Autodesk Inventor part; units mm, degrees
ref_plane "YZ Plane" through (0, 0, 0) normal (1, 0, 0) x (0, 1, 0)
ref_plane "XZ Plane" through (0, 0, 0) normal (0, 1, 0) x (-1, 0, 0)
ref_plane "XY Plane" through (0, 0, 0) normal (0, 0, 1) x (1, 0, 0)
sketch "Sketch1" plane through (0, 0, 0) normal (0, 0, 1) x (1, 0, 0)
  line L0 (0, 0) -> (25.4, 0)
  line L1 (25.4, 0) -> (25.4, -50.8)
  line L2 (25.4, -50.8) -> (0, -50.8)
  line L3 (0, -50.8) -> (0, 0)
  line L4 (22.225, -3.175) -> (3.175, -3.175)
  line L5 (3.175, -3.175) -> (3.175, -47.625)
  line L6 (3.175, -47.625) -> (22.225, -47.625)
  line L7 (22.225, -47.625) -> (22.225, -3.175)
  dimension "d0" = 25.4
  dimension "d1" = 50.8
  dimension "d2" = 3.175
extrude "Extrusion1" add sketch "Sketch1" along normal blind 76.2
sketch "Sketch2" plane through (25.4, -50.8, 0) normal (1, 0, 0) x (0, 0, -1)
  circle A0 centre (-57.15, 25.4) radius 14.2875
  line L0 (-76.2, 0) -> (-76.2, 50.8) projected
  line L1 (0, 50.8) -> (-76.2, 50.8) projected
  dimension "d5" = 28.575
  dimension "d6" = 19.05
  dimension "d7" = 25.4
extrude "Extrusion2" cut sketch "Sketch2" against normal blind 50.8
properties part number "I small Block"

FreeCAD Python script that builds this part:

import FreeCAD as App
import Part
import Sketcher
Q = App.Units.Quantity


def add_polygon(sketch, points):
    """Adds a closed chain of lines whose ends are joined by coincident constraints."""
    first, n = sketch.GeometryCount, len(points)
    for a, b in zip(points, points[1:] + points[:1]):
        sketch.addGeometry(Part.LineSegment(App.Vector(*a, 0), App.Vector(*b, 0)), False)
    for i in range(n):
        sketch.addConstraint(Sketcher.Constraint("Coincident", first + i, 2, first + (i + 1) % n, 1))

doc = App.newDocument("Part")
body = doc.addObject("PartDesign::Body", "Body")

# Sketch on XY plane
sketch1 = body.newObject("Sketcher::SketchObject", "Sketch")
sketch1.AttachmentSupport = (doc.getObject("XY_Plane"), [""])
sketch1.MapMode = "FlatFace"
add_polygon(sketch1, [(25, 0), (0, 0), (0, -51), (25, -51)])  # lines 0-3
add_polygon(sketch1, [(3, -3), (22, -3), (22, -48), (3, -48)])  # lines 4-7
sketch1.addConstraint([
    Sketcher.Constraint("Horizontal", 0),
    Sketcher.Constraint("Vertical", 1),
    Sketcher.Constraint("Horizontal", 2),
    Sketcher.Constraint("Vertical", 3),
    Sketcher.Constraint("Horizontal", 4),
    Sketcher.Constraint("Vertical", 5),
    Sketcher.Constraint("Horizontal", 6),
    Sketcher.Constraint("Vertical", 7),
    Sketcher.Constraint("Coincident", 0, 2, -1, 1),
    Sketcher.Constraint("DistanceX", 0, 2, 0, 1, Q("1 in")),
    Sketcher.Constraint("DistanceY", 1, 2, 1, 1, Q("2 in")),
    Sketcher.Constraint("DistanceY", 4, 2, -1, 1, Q("0.125 in")),
    Sketcher.Constraint("DistanceX", -1, 1, 6, 2, Q("0.125 in")),
    Sketcher.Constraint("DistanceX", 4, 2, 3, 2, Q("0.125 in")),
    Sketcher.Constraint("DistanceY", 2, 2, 5, 2, Q("0.125 in")),
])
pad1 = body.newObject("PartDesign::Pad", "Pad")
pad1.Profile = sketch1
pad1.Length = Q("3 in")

# Sketch on YZ plane
sketch2 = body.newObject("Sketcher::SketchObject", "Sketch001")
sketch2.AttachmentSupport = (doc.getObject("YZ_Plane"), [""])
sketch2.MapMode = "FlatFace"
sketch2.AttachmentOffset = App.Placement(App.Vector(0, 0, 1 * 25.4), App.Rotation())
sketch2.addGeometry(Part.Circle(App.Vector(-25, 57, 0), App.Vector(0, 0, 1), 14), False)
sketch2.addConstraint([
    Sketcher.Constraint("Diameter", 0, Q("1.125 in")),
    Sketcher.Constraint("DistanceX", 0, 3, -1, 1, Q("1 in")),
    Sketcher.Constraint("DistanceY", -1, 1, 0, 3, Q("2.25 in")),
])
pocket1 = body.newObject("PartDesign::Pocket", "Pocket")
pocket1.Profile = sketch2
pocket1.Length = Q("2 in")

doc.recompute()
